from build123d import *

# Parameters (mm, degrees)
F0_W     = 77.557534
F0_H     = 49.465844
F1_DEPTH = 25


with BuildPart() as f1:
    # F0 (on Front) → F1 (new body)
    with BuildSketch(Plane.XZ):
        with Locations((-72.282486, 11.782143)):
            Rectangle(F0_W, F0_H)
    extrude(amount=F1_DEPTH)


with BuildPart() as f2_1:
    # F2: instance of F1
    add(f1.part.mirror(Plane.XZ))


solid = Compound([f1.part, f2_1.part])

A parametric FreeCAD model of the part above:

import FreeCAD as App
import Part
import Sketcher

V = App.Vector


def add_polygon(sketch, points):
    """Adds a closed chain of lines whose ends are joined by coincident constraints."""
    first, n = sketch.GeometryCount, len(points)
    for a, b in zip(points, points[1:] + points[:1]):
        sketch.addGeometry(Part.LineSegment(App.Vector(*a, 0), App.Vector(*b, 0)), False)
    for i in range(n):
        sketch.addConstraint(Sketcher.Constraint("Coincident", first + i, 2, first + (i + 1) % n, 1))

doc = App.newDocument("Part")
body = doc.addObject("PartDesign::Body", "Body")

sketch1 = doc.addObject("Sketcher::SketchObject", "Sketch")
body.addObject(sketch1)
sketch1.AttachmentSupport = (doc.XZ_Plane, [""])
sketch1.MapMode = "FlatFace"
add_polygon(sketch1, [(-111, 37), (-111, -13), (-34, -13), (-34, 37)])
sketch1.addConstraint(Sketcher.Constraint("Vertical", 0))
sketch1.addConstraint(Sketcher.Constraint("Horizontal", 1))
sketch1.addConstraint(Sketcher.Constraint("Vertical", 2))
sketch1.addConstraint(Sketcher.Constraint("Horizontal", 3))
sketch1.addConstraint(Sketcher.Constraint("DistanceX", 1, 1, 1, 2, 77.557534))
sketch1.addConstraint(Sketcher.Constraint("DistanceY", 0, 2, 0, 1, 49.465844))
sketch1.addConstraint(Sketcher.Constraint("DistanceY", 0, 2, -1, 1, 12.950779))
sketch1.addConstraint(Sketcher.Constraint("DistanceX", 1, 2, -1, 1, 33.503719))
pad1 = doc.addObject("PartDesign::Pad", "Pad")
body.addObject(pad1)
pad1.Profile = sketch1
pad1.Length = 25
body2 = doc.addObject("PartDesign::Body", "Body001")
doc.recompute()

mirroring = doc.addObject("Part::Mirroring", "Mirroring")
mirroring.Source = body
mirroring.Base = V(0, 0, 0)
mirroring.Normal = V(0, -1, 0)
body2.BaseFeature = mirroring
doc.recompute()
mirroring.Visibility = False

doc.recompute()
